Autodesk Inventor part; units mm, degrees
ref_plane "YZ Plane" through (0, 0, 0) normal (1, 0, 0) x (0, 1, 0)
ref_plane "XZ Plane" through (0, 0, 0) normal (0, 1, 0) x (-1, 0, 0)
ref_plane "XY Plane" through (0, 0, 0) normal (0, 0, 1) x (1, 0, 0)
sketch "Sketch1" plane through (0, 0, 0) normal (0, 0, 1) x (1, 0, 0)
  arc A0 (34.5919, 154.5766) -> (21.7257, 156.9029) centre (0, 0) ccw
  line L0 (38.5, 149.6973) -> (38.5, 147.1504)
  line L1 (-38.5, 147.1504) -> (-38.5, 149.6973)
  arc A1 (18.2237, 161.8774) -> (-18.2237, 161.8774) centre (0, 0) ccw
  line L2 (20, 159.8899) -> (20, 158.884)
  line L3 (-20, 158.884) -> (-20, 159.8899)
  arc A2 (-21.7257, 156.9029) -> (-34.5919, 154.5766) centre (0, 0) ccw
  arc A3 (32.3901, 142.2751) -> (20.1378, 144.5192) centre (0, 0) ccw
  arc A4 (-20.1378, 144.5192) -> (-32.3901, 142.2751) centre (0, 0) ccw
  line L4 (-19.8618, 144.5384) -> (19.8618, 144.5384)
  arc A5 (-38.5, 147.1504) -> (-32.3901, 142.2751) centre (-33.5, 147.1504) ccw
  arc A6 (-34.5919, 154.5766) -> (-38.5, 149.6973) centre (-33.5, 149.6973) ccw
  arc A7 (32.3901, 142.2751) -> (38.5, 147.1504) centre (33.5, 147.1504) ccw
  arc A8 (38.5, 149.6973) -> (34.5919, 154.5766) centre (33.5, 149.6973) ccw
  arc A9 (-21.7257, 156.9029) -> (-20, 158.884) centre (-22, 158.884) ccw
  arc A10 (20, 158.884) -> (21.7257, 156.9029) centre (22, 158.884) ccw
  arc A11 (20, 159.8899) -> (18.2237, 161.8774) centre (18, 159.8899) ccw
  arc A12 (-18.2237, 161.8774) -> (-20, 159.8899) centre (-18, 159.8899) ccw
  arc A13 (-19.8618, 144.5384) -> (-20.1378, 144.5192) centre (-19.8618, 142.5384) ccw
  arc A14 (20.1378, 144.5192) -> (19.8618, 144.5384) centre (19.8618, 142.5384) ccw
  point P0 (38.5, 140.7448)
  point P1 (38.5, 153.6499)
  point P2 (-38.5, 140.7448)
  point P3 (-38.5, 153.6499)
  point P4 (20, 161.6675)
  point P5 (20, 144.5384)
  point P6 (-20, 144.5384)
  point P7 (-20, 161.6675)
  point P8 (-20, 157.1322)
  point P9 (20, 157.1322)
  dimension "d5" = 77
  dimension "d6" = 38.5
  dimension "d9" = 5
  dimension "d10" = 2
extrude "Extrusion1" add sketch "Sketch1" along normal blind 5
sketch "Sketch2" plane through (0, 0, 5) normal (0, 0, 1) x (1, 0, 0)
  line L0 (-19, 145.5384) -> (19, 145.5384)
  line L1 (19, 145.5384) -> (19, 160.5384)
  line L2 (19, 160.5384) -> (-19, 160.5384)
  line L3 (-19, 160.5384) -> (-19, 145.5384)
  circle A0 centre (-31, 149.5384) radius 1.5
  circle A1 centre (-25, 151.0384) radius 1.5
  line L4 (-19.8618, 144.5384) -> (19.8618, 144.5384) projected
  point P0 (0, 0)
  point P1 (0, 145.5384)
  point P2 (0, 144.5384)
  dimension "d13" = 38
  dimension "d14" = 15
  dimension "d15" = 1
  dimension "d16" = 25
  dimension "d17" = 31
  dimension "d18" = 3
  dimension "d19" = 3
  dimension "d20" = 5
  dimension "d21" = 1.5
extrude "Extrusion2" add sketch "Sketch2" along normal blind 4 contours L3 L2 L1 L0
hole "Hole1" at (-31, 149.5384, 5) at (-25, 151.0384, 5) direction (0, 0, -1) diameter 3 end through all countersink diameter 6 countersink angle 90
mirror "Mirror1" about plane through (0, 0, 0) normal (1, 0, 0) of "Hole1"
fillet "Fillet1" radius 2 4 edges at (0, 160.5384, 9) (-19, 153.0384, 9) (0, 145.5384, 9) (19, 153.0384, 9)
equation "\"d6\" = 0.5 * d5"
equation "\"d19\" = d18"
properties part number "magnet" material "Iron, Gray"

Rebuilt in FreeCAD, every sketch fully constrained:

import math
import FreeCAD as App
import Part
import Sketcher


def edges_at(feature, points):
    """Names of the edges that pass closest to the given points."""
    edges = feature.Shape.Edges
    near = lambda p: min(range(len(edges)), key=lambda i: edges[i].distToShape(Part.Vertex(*p))[0])
    return sorted({f"Edge{near(p) + 1}" for p in points})

doc = App.newDocument("Part")
body = doc.addObject("PartDesign::Body", "Body")

# Sketch on XY plane
sketch1 = doc.addObject("Sketcher::SketchObject", "Sketch")
body.addObject(sketch1)
sketch1.AttachmentSupport = (doc.XY_Plane, [""])
sketch1.MapMode = "FlatFace"
sketch1.addGeometry([
    Part.ArcOfCircle(Part.Circle(App.Vector(33.5, 149.6973, 0), App.Vector(0, 0, 1), 5), math.radians(0), math.radians(77.386052)),  # 0
    Part.ArcOfCircle(Part.Circle(App.Vector(-0.000461, -0.00228, 0), App.Vector(0, 0, 1), 158.402215), math.radians(77.38592), math.radians(82.116564)),  # 1
    Part.ArcOfCircle(Part.Circle(App.Vector(22, 158.884, 0), App.Vector(0, 0, 1), 2), math.radians(180), math.radians(262.117035)),  # 2
    Part.LineSegment(App.Vector(20, 158.884, 0), App.Vector(20, 159.8899, 0)),  # 3
    Part.ArcOfCircle(Part.Circle(App.Vector(18, 159.8899, 0), App.Vector(0, 0, 1), 2), math.radians(0), math.radians(83.578189)),  # 4
    Part.ArcOfCircle(Part.Circle(App.Vector(0, 0, 0), App.Vector(0, 0, 1), 162.899957), math.radians(83.576847), math.radians(96.423153)),  # 5
    Part.ArcOfCircle(Part.Circle(App.Vector(-18, 159.8899, 0), App.Vector(0, 0, 1), 2.000049), math.radians(96.421811), math.radians(180)),  # 6
    Part.LineSegment(App.Vector(-20, 159.8899, 0), App.Vector(-20, 158.884, 0)),  # 7
    Part.ArcOfCircle(Part.Circle(App.Vector(-22, 158.884, 0), App.Vector(0, 0, 1), 1.999999), math.radians(-82.117035), math.radians(0)),  # 8
    Part.ArcOfCircle(Part.Circle(App.Vector(-0.000367, 0.002297, 0), App.Vector(0, 0, 1), 158.397567), math.radians(97.883367), math.radians(102.61415)),  # 9
    Part.ArcOfCircle(Part.Circle(App.Vector(-33.5, 149.6973, 0), App.Vector(0, 0, 1), 4.999981), math.radians(102.613948), math.radians(180)),  # 10
    Part.LineSegment(App.Vector(-38.5, 149.6973, 0), App.Vector(-38.5, 147.1504, 0)),  # 11
    Part.ArcOfCircle(Part.Circle(App.Vector(-33.5, 147.1504, 0), App.Vector(0, 0, 1), 5), math.radians(180), math.radians(282.825243)),  # 12
    Part.ArcOfCircle(Part.Circle(App.Vector(-0.002244, 0.013922, 0), App.Vector(0, 0, 1), 145.901392), math.radians(97.932593), math.radians(102.825623)),  # 13
    Part.ArcOfCircle(Part.Circle(App.Vector(-19.862258, 142.55164, 0), App.Vector(0, 0, 1), 1.98676), math.radians(89.986779), math.radians(97.971986)),  # 14
    Part.LineSegment(App.Vector(-19.8618, 144.5384, 0), App.Vector(19.8618, 144.5384, 0)),  # 15
    Part.ArcOfCircle(Part.Circle(App.Vector(19.860408, 142.525047, 0), App.Vector(0, 0, 1), 2.013354), math.radians(82.080835), math.radians(89.9604)),  # 16
    Part.ArcOfCircle(Part.Circle(App.Vector(-0.002836, -0.013816, 0), App.Vector(0, 0, 1), 145.929565), math.radians(77.17485), math.radians(82.066934)),  # 17
    Part.ArcOfCircle(Part.Circle(App.Vector(33.5, 147.1504, 0), App.Vector(0, 0, 1), 5.000043), math.radians(-102.825243), math.radians(0)),  # 18
    Part.LineSegment(App.Vector(38.5, 147.1504, 0), App.Vector(38.5, 149.6973, 0)),  # 19
], False)
sketch1.addConstraint([
    Sketcher.Constraint("Coincident", 0, 2, 1, 1),
    Sketcher.Constraint("Coincident", 1, 2, 2, 2),
    Sketcher.Constraint("Coincident", 2, 1, 3, 1),
    Sketcher.Constraint("Coincident", 3, 2, 4, 1),
    Sketcher.Constraint("Coincident", 4, 2, 5, 1),
    Sketcher.Constraint("Coincident", 5, 2, 6, 1),
    Sketcher.Constraint("Coincident", 6, 2, 7, 1),
    Sketcher.Constraint("Coincident", 7, 2, 8, 2),
    Sketcher.Constraint("Coincident", 8, 1, 9, 1),
    Sketcher.Constraint("Coincident", 9, 2, 10, 1),
    Sketcher.Constraint("Coincident", 10, 2, 11, 1),
    Sketcher.Constraint("Coincident", 11, 2, 12, 1),
    Sketcher.Constraint("Coincident", 12, 2, 13, 2),
    Sketcher.Constraint("Coincident", 13, 1, 14, 2),
    Sketcher.Constraint("Coincident", 14, 1, 15, 1),
    Sketcher.Constraint("Coincident", 15, 2, 16, 2),
    Sketcher.Constraint("Coincident", 16, 1, 17, 2),
    Sketcher.Constraint("Coincident", 17, 1, 18, 1),
    Sketcher.Constraint("Coincident", 18, 2, 19, 1),
    Sketcher.Constraint("Coincident", 19, 2, 0, 1),
    Sketcher.Constraint("Vertical", 3),
    Sketcher.Constraint("Vertical", 7),
    Sketcher.Constraint("Vertical", 11),
    Sketcher.Constraint("Horizontal", 15),
    Sketcher.Constraint("Vertical", 19),
    Sketcher.Constraint("Coincident", 5, 3, -1, 1),
    Sketcher.Constraint("Radius", 0, 5.0),
    Sketcher.Constraint("Radius", 2, 2.0),
    Sketcher.Constraint("Radius", 4, 2.0),
    Sketcher.Constraint("Radius", 6, 2.0),
    Sketcher.Constraint("Radius", 8, 2.0),
    Sketcher.Constraint("Radius", 10, 5.0),
    Sketcher.Constraint("Radius", 12, 5.0),
    Sketcher.Constraint("Radius", 18, 5.0),
    Sketcher.Constraint("DistanceX", 10, 2, -1, 1, 38.5),
    Sketcher.Constraint("DistanceX", -1, 1, 18, 2, 38.5),
    Sketcher.Constraint("Radius", 5, 162.9),
    Sketcher.Constraint("DistanceX", -1, 1, 2, 3, 22.0),
    Sketcher.Constraint("DistanceX", 6, 3, -1, 1, 18.0),
    Sketcher.Constraint("Radius", 1, 158.4022),
    Sketcher.Constraint("Radius", 9, 158.3976),
    Sketcher.Constraint("Radius", 13, 145.9014),
    Sketcher.Constraint("Radius", 14, 1.9868),
    Sketcher.Constraint("Radius", 16, 2.0134),
    Sketcher.Constraint("Radius", 17, 145.9296),
    Sketcher.Constraint("DistanceY", 3, 1, 3, 2, 1.006),
    Sketcher.Constraint("DistanceY", 7, 2, 7, 1, 1.006),
    Sketcher.Constraint("DistanceY", 11, 2, 11, 1, 2.547),
    Sketcher.Constraint("DistanceY", 19, 1, 19, 2, 2.547),
    Sketcher.Constraint("DistanceY", -1, 1, 3, 2, 159.89),
    Sketcher.Constraint("DistanceY", -1, 1, 6, 2, 159.89),
    Sketcher.Constraint("DistanceX", 12, 2, -1, 1, 32.39),
    Sketcher.Constraint("DistanceX", -1, 1, 17, 1, 32.39),
    Sketcher.Constraint("DistanceY", 10, 3, 5, 2, 12.18),
    Sketcher.Constraint("DistanceY", 17, 1, 16, 3, 0.25),
    Sketcher.Constraint("DistanceX", 15, 1, 15, 2, 39.7236),
    Sketcher.Constraint("DistanceY", -1, 1, 2, 3, 158.884),
    Sketcher.Constraint("DistanceY", -1, 1, 8, 3, 158.884),
    Sketcher.Constraint("DistanceY", -1, 1, 13, 3, 0.014),
    Sketcher.Constraint("DistanceY", -1, 1, 16, 3, 142.525),
    Sketcher.Constraint("DistanceX", -1, 1, 0, 2, 34.592),
    Sketcher.Constraint("DistanceY", -1, 1, 1, 2, 156.903),
    Sketcher.Constraint("DistanceY", -1, 1, 8, 1, 156.903),
    Sketcher.Constraint("DistanceX", 9, 2, -1, 1, 34.592),
    Sketcher.Constraint("DistanceY", 9, 3, 0, 3, 149.695),
    Sketcher.Constraint("DistanceY", 12, 3, 10, 3, 2.547),
    Sketcher.Constraint("DistanceY", 17, 3, 9, 3, 0.016),
    Sketcher.Constraint("DistanceY", 18, 3, 0, 3, 2.547),
    Sketcher.Constraint("DistanceX", 4, 2, 1, 2, 3.502),
    Sketcher.Constraint("DistanceY", 12, 3, 10, 2, 2.547),
    Sketcher.Constraint("DistanceY", 12, 2, 13, 1, 2.244),
    Sketcher.Constraint("DistanceX", 13, 1, 14, 1, 0.276),
    Sketcher.Constraint("DistanceX", 15, 2, 16, 1, 0.276),
    Sketcher.Constraint("DistanceY", 18, 2, 0, 3, 2.547),
])
pad1 = doc.addObject("PartDesign::Pad", "Pad")
body.addObject(pad1)
pad1.Profile = sketch1
pad1.Length = 5

# Sketch on XY plane
sketch2 = doc.addObject("Sketcher::SketchObject", "Sketch001")
body.addObject(sketch2)
sketch2.AttachmentSupport = (doc.XY_Plane, [""])
sketch2.MapMode = "FlatFace"
sketch2.AttachmentOffset = App.Placement(App.Vector(0, 0, 5), App.Rotation())
sketch2.addGeometry([
    Part.LineSegment(App.Vector(-19, 160.5384, 0), App.Vector(-19, 145.5384, 0)),
    Part.LineSegment(App.Vector(-19, 145.5384, 0), App.Vector(19, 145.5384, 0)),
    Part.LineSegment(App.Vector(19, 145.5384, 0), App.Vector(19, 160.5384, 0)),
    Part.LineSegment(App.Vector(19, 160.5384, 0), App.Vector(-19, 160.5384, 0)),
], False)
sketch2.addConstraint([
    Sketcher.Constraint("Coincident", 0, 2, 1, 1),
    Sketcher.Constraint("Coincident", 1, 2, 2, 1),
    Sketcher.Constraint("Coincident", 2, 2, 3, 1),
    Sketcher.Constraint("Coincident", 3, 2, 0, 1),
    Sketcher.Constraint("Vertical", 0),
    Sketcher.Constraint("Horizontal", 1),
    Sketcher.Constraint("Vertical", 2),
    Sketcher.Constraint("Horizontal", 3),
    Sketcher.Constraint("DistanceX", 1, 1, 1, 2, 38.0),
    Sketcher.Constraint("DistanceY", 0, 2, 0, 1, 15.0),
    Sketcher.Constraint("DistanceX", 0, 2, -1, 1, 19.0),
    Sketcher.Constraint("DistanceY", -1, 1, 0, 2, 145.5384),
])
pad2 = doc.addObject("PartDesign::Pad", "Pad001")
body.addObject(pad2)
pad2.Profile = sketch2
pad2.Length = 4

# Sketch on XY plane
sketch3 = doc.addObject("Sketcher::SketchObject", "Sketch002")
body.addObject(sketch3)
sketch3.AttachmentSupport = (doc.XY_Plane, [""])
sketch3.MapMode = "FlatFace"
sketch3.AttachmentOffset = App.Placement(App.Vector(0, 0, 5), App.Rotation())
sketch3.addGeometry([
    Part.Circle(App.Vector(-31, 149.5384, 0), App.Vector(0, 0, 1), 1.5),
    Part.Circle(App.Vector(-25, 151.0384, 0), App.Vector(0, 0, 1), 1.5),
], False)
sketch3.addConstraint([
    Sketcher.Constraint("Equal", 0, 1),
    Sketcher.Constraint("Diameter", 0, 3.0),
    Sketcher.Constraint("DistanceX", 0, 3, -1, 1, 31.0),
    Sketcher.Constraint("DistanceX", 1, 3, -1, 1, 25.0),
    Sketcher.Constraint("DistanceY", 0, 3, 1, 3, 1.5),
    Sketcher.Constraint("DistanceY", -1, 1, 0, 3, 149.5384),
])
doc.recompute()
hole = doc.addObject("PartDesign::Hole", "Hole")
body.addObject(hole)
hole.Profile = sketch3
hole.ThreadType = "None"
hole.Diameter = 3
hole.DepthType = "ThroughAll"
hole.HoleCutType = "Countersink"
hole.HoleCutDiameter = 6
hole.HoleCutCountersinkAngle = 90
doc.recompute()

mirrored = doc.addObject("PartDesign::Mirrored", "Mirrored")
body.addObject(mirrored)
mirrored.Originals = [hole]
mirrored.MirrorPlane = (doc.YZ_Plane, [""])
body.Tip = mirrored
doc.recompute()

fillet = doc.addObject("PartDesign::Fillet", "Fillet")
body.addObject(fillet)
fillet.Base = (mirrored, edges_at(mirrored, [
    (0, 160.538, 9),
    (-19, 153.038, 9),
    (0, 145.538, 9),
    (19, 153.038, 9),
]))
fillet.Radius = 2

doc.recompute()
